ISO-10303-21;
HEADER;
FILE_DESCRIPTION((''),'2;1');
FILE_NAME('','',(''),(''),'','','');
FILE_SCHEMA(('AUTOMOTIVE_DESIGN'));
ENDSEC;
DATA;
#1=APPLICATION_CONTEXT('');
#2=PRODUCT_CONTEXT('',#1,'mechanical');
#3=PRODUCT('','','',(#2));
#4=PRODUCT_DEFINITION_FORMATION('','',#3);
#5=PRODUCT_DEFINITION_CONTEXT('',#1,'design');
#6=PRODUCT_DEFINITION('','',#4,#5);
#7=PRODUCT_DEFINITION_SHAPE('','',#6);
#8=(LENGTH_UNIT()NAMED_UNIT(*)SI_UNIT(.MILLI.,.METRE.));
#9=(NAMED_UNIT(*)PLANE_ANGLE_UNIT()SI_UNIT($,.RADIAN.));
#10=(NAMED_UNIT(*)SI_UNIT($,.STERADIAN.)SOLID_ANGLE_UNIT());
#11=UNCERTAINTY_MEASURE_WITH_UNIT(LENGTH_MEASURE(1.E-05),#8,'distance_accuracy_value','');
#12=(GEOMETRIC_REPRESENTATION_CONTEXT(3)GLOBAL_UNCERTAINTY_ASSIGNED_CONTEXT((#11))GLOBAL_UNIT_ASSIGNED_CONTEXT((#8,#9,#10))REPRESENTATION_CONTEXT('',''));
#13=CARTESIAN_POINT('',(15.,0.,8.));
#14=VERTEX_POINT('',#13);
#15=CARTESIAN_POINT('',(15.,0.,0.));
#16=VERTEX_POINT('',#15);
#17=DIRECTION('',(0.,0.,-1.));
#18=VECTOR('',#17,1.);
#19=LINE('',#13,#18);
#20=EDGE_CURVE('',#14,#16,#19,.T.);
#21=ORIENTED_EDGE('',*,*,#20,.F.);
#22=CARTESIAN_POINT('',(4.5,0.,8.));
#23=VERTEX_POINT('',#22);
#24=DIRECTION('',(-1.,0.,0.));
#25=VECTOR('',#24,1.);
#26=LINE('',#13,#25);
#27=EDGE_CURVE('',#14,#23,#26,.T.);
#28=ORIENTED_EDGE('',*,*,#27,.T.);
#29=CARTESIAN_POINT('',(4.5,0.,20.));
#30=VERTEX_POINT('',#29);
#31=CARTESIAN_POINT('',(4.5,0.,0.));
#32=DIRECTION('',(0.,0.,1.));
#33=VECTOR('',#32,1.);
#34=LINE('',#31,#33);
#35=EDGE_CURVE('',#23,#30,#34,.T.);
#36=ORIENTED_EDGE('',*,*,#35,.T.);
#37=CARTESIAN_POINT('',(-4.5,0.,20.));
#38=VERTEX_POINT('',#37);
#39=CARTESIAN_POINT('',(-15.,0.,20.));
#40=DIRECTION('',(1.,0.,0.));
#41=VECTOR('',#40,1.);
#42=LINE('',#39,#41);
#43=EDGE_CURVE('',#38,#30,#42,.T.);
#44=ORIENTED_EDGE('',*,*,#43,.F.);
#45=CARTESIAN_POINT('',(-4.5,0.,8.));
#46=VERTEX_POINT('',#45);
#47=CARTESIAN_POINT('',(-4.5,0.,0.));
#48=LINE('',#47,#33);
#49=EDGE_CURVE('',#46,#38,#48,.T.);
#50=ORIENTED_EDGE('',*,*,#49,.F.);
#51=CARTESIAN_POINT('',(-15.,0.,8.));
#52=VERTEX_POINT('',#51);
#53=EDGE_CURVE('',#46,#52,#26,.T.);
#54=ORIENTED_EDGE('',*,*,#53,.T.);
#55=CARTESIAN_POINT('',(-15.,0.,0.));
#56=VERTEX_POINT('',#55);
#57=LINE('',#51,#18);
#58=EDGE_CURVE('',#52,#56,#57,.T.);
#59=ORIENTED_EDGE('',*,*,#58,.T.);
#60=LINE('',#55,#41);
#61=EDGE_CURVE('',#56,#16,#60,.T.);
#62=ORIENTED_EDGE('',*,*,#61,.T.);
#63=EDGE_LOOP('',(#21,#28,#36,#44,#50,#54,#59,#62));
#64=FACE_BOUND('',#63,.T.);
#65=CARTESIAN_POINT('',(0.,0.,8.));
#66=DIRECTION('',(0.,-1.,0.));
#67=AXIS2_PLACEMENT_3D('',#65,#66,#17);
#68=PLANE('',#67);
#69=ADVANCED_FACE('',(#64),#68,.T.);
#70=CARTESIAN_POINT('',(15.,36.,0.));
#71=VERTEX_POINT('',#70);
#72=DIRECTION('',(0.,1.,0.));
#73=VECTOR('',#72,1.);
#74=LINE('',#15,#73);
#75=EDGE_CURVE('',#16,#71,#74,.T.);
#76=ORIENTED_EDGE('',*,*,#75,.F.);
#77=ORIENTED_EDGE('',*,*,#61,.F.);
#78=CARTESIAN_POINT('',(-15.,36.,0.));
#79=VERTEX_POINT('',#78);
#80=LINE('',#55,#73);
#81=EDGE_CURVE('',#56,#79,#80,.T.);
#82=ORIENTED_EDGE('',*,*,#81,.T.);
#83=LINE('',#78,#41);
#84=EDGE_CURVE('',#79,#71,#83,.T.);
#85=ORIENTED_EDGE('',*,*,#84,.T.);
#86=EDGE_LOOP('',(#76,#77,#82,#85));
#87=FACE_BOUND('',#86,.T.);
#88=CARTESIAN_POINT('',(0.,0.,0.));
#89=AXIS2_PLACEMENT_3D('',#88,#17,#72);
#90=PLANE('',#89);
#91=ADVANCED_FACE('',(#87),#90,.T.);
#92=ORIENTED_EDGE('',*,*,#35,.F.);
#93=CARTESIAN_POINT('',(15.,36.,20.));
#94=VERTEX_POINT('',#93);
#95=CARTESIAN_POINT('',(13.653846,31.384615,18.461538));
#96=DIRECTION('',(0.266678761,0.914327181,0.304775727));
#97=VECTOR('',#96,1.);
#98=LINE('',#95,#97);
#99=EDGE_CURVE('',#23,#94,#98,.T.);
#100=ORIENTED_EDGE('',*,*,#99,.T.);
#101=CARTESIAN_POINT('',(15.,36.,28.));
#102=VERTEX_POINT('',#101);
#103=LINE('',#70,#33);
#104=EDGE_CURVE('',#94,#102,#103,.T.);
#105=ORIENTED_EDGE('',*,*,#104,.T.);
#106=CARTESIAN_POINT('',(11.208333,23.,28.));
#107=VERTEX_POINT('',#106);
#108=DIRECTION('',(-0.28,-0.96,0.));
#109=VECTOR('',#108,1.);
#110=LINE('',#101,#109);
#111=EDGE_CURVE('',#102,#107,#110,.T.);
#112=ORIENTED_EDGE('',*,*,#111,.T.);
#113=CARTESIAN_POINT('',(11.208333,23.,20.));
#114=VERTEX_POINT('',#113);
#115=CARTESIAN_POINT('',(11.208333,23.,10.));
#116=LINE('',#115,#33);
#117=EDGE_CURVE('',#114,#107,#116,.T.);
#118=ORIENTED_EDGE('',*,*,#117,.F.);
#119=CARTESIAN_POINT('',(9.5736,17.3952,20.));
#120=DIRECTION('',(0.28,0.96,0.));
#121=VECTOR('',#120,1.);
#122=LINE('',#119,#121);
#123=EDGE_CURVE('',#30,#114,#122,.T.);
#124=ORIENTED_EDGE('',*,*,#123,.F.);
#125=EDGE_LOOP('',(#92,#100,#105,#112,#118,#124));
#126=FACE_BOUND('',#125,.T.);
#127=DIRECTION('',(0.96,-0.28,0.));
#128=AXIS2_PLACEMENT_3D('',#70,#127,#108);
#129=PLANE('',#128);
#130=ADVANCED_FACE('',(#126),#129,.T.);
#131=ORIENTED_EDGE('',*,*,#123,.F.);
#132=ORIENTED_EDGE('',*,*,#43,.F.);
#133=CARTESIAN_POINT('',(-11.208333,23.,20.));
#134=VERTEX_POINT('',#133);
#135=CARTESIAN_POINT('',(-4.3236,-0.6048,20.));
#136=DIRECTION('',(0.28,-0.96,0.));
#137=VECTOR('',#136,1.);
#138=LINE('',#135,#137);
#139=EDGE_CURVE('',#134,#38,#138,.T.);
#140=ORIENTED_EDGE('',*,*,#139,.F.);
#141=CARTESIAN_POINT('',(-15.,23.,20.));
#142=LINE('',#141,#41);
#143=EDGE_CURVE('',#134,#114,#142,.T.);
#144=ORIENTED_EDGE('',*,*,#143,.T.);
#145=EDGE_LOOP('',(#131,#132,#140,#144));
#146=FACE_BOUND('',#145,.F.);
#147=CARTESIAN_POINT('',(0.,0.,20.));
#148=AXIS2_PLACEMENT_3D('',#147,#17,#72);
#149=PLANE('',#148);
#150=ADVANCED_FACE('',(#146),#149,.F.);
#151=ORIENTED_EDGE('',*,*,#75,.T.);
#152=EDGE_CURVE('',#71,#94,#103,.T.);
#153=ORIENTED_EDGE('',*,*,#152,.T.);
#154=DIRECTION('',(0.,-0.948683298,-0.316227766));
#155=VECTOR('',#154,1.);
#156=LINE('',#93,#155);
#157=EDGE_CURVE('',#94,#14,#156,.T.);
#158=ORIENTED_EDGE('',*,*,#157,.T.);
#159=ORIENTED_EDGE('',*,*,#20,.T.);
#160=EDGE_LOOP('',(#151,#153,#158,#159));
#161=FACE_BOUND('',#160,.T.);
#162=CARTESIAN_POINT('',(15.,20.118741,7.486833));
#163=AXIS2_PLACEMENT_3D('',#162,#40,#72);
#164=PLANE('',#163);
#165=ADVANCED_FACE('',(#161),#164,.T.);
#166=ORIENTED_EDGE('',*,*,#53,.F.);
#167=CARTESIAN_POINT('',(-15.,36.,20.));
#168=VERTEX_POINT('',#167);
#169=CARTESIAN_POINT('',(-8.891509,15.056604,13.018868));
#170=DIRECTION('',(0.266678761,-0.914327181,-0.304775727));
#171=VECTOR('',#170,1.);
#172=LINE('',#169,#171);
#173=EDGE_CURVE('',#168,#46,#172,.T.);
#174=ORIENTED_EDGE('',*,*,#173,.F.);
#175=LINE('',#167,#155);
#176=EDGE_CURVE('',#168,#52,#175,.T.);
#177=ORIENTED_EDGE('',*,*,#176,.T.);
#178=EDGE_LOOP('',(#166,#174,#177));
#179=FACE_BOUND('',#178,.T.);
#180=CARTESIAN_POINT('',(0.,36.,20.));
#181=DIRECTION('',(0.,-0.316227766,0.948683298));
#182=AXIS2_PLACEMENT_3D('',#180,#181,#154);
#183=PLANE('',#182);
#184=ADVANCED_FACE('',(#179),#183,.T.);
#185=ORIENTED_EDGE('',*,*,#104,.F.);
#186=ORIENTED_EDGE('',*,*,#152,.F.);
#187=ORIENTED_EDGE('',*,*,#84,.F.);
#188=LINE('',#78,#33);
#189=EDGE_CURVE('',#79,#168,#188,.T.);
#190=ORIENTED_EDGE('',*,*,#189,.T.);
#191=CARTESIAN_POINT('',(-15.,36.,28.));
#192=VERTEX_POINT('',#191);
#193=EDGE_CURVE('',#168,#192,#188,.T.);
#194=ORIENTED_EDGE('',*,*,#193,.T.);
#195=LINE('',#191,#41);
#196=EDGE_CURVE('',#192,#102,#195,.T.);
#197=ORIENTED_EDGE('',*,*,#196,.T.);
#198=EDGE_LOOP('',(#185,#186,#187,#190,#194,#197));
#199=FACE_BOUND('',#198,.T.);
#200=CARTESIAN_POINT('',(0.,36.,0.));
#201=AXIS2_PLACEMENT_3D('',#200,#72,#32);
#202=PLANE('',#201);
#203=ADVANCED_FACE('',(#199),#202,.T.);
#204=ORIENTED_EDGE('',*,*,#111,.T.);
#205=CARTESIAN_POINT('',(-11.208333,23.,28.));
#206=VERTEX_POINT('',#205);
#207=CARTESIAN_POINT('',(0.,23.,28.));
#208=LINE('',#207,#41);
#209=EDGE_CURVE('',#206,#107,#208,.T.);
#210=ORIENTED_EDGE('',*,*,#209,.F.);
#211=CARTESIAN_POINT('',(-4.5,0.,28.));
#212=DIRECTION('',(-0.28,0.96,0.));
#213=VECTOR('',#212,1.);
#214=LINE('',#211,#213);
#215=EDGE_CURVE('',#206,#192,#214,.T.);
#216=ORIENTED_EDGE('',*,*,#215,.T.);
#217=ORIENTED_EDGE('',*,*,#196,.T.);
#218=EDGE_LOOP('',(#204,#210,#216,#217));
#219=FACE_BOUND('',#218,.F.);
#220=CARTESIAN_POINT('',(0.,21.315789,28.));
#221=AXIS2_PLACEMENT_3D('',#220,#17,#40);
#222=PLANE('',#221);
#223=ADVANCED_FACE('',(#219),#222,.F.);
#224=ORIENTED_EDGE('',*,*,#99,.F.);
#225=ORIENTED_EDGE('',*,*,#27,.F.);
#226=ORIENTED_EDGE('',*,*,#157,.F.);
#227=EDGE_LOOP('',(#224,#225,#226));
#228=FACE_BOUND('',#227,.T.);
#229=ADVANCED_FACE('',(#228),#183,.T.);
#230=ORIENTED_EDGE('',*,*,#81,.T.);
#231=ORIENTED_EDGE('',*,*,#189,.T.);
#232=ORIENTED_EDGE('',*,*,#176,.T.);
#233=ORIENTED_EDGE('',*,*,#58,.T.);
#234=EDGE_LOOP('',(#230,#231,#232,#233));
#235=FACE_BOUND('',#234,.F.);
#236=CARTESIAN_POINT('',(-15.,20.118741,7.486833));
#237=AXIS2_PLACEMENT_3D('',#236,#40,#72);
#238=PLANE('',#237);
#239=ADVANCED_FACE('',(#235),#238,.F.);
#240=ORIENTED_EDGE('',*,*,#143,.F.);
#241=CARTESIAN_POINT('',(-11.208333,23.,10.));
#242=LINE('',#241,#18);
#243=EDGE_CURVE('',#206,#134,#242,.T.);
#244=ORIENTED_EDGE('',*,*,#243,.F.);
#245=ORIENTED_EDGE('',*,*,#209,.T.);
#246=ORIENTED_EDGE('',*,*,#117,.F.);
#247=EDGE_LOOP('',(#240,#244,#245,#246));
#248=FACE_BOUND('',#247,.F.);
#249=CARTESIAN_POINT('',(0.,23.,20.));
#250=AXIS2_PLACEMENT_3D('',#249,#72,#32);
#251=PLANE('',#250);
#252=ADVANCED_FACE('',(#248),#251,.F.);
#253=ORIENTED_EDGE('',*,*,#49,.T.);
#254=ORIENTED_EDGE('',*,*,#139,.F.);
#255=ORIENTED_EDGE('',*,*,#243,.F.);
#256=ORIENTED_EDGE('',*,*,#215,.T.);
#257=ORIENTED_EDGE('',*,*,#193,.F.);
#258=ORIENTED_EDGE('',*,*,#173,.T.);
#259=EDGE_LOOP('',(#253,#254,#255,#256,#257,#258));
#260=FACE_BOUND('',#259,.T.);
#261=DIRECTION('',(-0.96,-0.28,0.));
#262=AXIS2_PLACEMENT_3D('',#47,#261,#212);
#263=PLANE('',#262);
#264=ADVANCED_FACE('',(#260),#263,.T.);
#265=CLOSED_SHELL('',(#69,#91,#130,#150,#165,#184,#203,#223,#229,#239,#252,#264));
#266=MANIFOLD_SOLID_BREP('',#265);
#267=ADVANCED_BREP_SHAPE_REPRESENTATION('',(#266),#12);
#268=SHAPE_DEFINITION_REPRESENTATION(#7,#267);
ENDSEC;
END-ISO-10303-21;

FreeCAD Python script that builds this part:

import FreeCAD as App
import Part
import Sketcher

V = App.Vector
Q = App.Units.Quantity

doc = App.newDocument("Part")
body = doc.addObject("PartDesign::Body", "Body")

sketch1 = body.newObject("Sketcher::SketchObject", "Sketch")
sketch1.AttachmentSupport = (doc.getObject("YZ_Plane"), [""])
sketch1.MapMode = "FlatFace"
sketch1.addGeometry([
    Part.LineSegment(V(0, 8, 0), V(0, 0, 0)),
    Part.LineSegment(V(0, 0, 0), V(36, 0, 0)),
    Part.LineSegment(V(36, 0, 0), V(36, 20, 0)),
    Part.LineSegment(V(36, 20, 0), V(0, 8, 0)),
], False)
sketch1.addConstraint([
    Sketcher.Constraint("Coincident", 0, 2, 1, 1),
    Sketcher.Constraint("Coincident", 1, 2, 2, 1),
    Sketcher.Constraint("Coincident", 2, 2, 3, 1),
    Sketcher.Constraint("Coincident", 3, 2, 0, 1),
    Sketcher.Constraint("Vertical", 0),
    Sketcher.Constraint("Horizontal", 1),
    Sketcher.Constraint("Vertical", 2),
    Sketcher.Constraint("Coincident", 0, 2, -1, 1),
    Sketcher.Constraint("DistanceX", 1, 1, 1, 2, Q("36 mm")),
    Sketcher.Constraint("DistanceY", 0, 2, 0, 1, Q("8 mm")),
    Sketcher.Constraint("DistanceY", 2, 1, 2, 2, Q("20 mm")),
])
pad1 = body.newObject("PartDesign::Pad", "Pad")
pad1.Profile = sketch1
pad1.Length = 30
pad1.Midplane = True

sketch2 = body.newObject("Sketcher::SketchObject", "Sketch001")
sketch2.AttachmentSupport = (doc.getObject("XY_Plane"), [""])
sketch2.MapMode = "FlatFace"
sketch2.addGeometry([
    Part.LineSegment(V(4, 0, 0), V(-4, 0, 0)),
    Part.LineSegment(V(-4, 0, 0), V(-15, 36, 0)),
    Part.LineSegment(V(-15, 36, 0), V(15, 36, 0)),
    Part.LineSegment(V(15, 36, 0), V(4, 0, 0)),
], False)
sketch2.addConstraint([
    Sketcher.Constraint("Coincident", 0, 2, 1, 1),
    Sketcher.Constraint("Coincident", 1, 2, 2, 1),
    Sketcher.Constraint("Coincident", 2, 2, 3, 1),
    Sketcher.Constraint("Coincident", 3, 2, 0, 1),
    Sketcher.Constraint("Horizontal", 0),
    Sketcher.Constraint("Horizontal", 2),
    Sketcher.Constraint("Symmetric", 0, 2, 3, 2, -1, 1),
    Sketcher.Constraint("Equal", 1, 3),
    Sketcher.Constraint("DistanceX", 0, 2, 0, 1, Q("9 mm")),
    Sketcher.Constraint("DistanceX", 2, 1, 2, 2, Q("30 mm")),
    Sketcher.Constraint("DistanceY", -1, 1, 1, 2, Q("36 mm")),
])
pad2 = body.newObject("PartDesign::Pad", "Pad001")
pad2.Profile = sketch2
pad2.Length = 28

sketch3 = body.newObject("Sketcher::SketchObject", "Sketch002")
sketch3.AttachmentSupport = (doc.getObject("YZ_Plane"), [""])
sketch3.MapMode = "FlatFace"
sketch3.addGeometry([
    Part.LineSegment(V(0, 30, 0), V(0, 20, 0)),
    Part.LineSegment(V(0, 20, 0), V(23, 20, 0)),
    Part.LineSegment(V(23, 20, 0), V(23, 30, 0)),
    Part.LineSegment(V(23, 30, 0), V(0, 30, 0)),
], False)
sketch3.addConstraint([
    Sketcher.Constraint("Coincident", 0, 2, 1, 1),
    Sketcher.Constraint("Coincident", 1, 2, 2, 1),
    Sketcher.Constraint("Coincident", 2, 2, 3, 1),
    Sketcher.Constraint("Coincident", 3, 2, 0, 1),
    Sketcher.Constraint("Vertical", 0),
    Sketcher.Constraint("Horizontal", 1),
    Sketcher.Constraint("Vertical", 2),
    Sketcher.Constraint("Horizontal", 3),
    Sketcher.Constraint("PointOnObject", 0, 2, -2),
    Sketcher.Constraint("DistanceX", 1, 1, 1, 2, Q("23 mm")),
    Sketcher.Constraint("DistanceY", 0, 2, 0, 1, Q("10 mm")),
    Sketcher.Constraint("DistanceY", -1, 1, 0, 2, Q("20 mm")),
])
pocket1 = body.newObject("PartDesign::Pocket", "Pocket")
pocket1.Profile = sketch3
pocket1.Length = 30
pocket1.Midplane = True

doc.recompute()
